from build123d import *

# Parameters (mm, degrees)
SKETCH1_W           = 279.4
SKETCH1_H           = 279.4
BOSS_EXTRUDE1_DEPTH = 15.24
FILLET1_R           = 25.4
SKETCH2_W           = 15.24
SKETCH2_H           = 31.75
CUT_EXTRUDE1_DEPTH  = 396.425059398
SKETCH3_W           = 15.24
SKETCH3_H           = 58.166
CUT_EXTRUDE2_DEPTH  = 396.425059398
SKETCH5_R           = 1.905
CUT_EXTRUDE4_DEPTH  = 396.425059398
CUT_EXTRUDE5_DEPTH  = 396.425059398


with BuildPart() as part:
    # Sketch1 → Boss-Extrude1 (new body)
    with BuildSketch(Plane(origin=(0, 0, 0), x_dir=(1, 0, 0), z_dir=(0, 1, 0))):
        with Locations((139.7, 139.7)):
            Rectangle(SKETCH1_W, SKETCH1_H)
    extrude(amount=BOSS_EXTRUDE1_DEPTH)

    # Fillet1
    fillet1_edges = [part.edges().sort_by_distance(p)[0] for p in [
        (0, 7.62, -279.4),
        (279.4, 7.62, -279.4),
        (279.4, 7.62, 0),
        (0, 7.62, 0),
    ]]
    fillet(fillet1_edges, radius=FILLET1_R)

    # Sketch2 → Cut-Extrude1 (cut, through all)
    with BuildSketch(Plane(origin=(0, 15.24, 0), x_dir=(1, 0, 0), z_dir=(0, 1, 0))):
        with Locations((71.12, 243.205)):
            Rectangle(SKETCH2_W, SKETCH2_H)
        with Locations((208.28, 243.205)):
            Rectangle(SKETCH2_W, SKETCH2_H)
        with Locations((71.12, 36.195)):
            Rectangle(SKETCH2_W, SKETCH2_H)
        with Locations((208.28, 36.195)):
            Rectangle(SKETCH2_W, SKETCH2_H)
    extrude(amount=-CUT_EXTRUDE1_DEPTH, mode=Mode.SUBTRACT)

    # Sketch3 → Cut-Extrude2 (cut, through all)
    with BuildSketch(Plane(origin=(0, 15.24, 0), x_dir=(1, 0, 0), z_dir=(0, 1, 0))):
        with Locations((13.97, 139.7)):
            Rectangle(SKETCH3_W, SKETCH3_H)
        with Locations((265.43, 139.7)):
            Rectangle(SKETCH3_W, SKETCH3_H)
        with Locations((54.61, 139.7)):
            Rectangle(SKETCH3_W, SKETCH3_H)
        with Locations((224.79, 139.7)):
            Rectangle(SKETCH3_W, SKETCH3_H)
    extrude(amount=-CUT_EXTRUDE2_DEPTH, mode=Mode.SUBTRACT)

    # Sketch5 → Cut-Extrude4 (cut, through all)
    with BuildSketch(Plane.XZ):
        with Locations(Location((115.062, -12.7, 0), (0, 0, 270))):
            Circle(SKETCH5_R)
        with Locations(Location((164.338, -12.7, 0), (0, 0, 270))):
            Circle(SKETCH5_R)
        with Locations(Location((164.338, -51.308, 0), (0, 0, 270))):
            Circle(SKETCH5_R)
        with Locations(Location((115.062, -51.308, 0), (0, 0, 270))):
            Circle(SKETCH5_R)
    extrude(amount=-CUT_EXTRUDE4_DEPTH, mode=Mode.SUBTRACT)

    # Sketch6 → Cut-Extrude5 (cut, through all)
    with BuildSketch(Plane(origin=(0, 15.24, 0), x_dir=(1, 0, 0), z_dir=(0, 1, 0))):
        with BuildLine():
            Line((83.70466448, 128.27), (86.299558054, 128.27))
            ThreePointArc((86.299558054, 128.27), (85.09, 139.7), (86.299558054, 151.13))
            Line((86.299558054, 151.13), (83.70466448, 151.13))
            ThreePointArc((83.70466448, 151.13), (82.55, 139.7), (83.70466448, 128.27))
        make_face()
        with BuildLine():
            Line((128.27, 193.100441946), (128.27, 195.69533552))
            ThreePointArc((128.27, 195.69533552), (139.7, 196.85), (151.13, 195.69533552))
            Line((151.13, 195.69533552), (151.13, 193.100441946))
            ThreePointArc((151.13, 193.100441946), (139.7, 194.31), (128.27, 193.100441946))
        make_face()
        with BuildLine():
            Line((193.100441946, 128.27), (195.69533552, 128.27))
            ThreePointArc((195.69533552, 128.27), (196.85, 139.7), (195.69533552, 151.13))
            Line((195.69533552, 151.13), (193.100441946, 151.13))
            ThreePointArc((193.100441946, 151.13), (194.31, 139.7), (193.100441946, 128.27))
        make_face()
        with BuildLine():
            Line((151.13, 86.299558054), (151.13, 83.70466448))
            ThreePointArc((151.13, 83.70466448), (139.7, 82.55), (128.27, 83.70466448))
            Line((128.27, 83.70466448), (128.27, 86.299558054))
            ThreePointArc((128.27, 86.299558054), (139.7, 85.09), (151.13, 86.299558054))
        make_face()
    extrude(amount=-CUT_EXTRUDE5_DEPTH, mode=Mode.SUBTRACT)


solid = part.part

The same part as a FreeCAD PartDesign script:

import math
import FreeCAD as App
import Part
import Sketcher
Q = App.Units.Quantity


def edges_at(feature, points):
    """Names of the edges that pass closest to the given points."""
    edges = feature.Shape.Edges
    near = lambda p: min(range(len(edges)), key=lambda i: edges[i].distToShape(Part.Vertex(*p))[0])
    return sorted({f"Edge{near(p) + 1}" for p in points})

doc = App.newDocument("Part")
params = doc.addObject("Spreadsheet::Sheet", "Params")
for row, (alias, value) in enumerate([
    ("sketch1_width", "11 in"),
    ("pad1_length", "0.6 in"),
    ("fillet_radius", "1 in"),
    ("sketch2_width", "0.6 in"),
    ("sketch2_height", "1.25 in"),
    ("sketch3_width", "0.6 in"),
    ("sketch3_height", "2.29 in"),
    ("sketch4_diameter", "0.15 in"),
    ("sketch5_radius", "2.15 in"),
    ("sketch5_radius2", "2.25 in"),
], start=1):
    params.set(f"A{row}", alias)
    params.set(f"B{row}", "=" + value)
    params.setAlias(f"B{row}", alias)

body = doc.addObject("PartDesign::Body", "Body")

# Sketch on XZ plane
sketch1 = doc.addObject("Sketcher::SketchObject", "Sketch")
body.addObject(sketch1)
sketch1.AttachmentSupport = (doc.XZ_Plane, [""])
sketch1.MapMode = "FlatFace"
sketch1.addGeometry([
    Part.LineSegment(App.Vector(0, -279, 0), App.Vector(0, 0, 0)),
    Part.LineSegment(App.Vector(0, 0, 0), App.Vector(279, 0, 0)),
    Part.LineSegment(App.Vector(279, 0, 0), App.Vector(279, -279, 0)),
    Part.LineSegment(App.Vector(279, -279, 0), App.Vector(0, -279, 0)),
], False)
sketch1.addConstraint([
    Sketcher.Constraint("Coincident", 0, 2, 1, 1),
    Sketcher.Constraint("Coincident", 1, 2, 2, 1),
    Sketcher.Constraint("Coincident", 2, 2, 3, 1),
    Sketcher.Constraint("Coincident", 3, 2, 0, 1),
    Sketcher.Constraint("Vertical", 0),
    Sketcher.Constraint("Horizontal", 1),
    Sketcher.Constraint("Vertical", 2),
    Sketcher.Constraint("Horizontal", 3),
    Sketcher.Constraint("Coincident", 0, 2, -1, 1),
    Sketcher.Constraint("Equal", 3, 0),
    Sketcher.Constraint("DistanceX", 1, 1, 1, 2, Q("11 in")),
])
sketch1.setExpression("Constraints[10]", "Params.sketch1_width")
pad1 = doc.addObject("PartDesign::Pad", "Pad")
body.addObject(pad1)
pad1.Profile = sketch1
pad1.setExpression("Length", "Params.pad1_length")
pad1.Reversed = True
doc.recompute()

fillet = doc.addObject("PartDesign::Fillet", "Fillet")
body.addObject(fillet)
fillet.Base = (pad1, edges_at(pad1, [
    (0, 7.62, -279.4),
    (279.4, 7.62, -279.4),
    (279.4, 7.62, 0),
    (0, 7.62, 0),
]))
fillet.setExpression("Radius", "Params.fillet_radius")

# Sketch on XZ plane
sketch2 = doc.addObject("Sketcher::SketchObject", "Sketch001")
body.addObject(sketch2)
sketch2.AttachmentSupport = (doc.XZ_Plane, [""])
sketch2.MapMode = "FlatFace"
sketch2.AttachmentOffset = App.Placement(App.Vector(0, 0, -0.6 * 25.4), App.Rotation())
sketch2.addGeometry([
    Part.LineSegment(App.Vector(64, -259, 0), App.Vector(64, -227, 0)),  # 0
    Part.LineSegment(App.Vector(64, -227, 0), App.Vector(79, -227, 0)),  # 1
    Part.LineSegment(App.Vector(79, -227, 0), App.Vector(79, -259, 0)),  # 2
    Part.LineSegment(App.Vector(79, -259, 0), App.Vector(64, -259, 0)),  # 3
    Part.LineSegment(App.Vector(201, -259, 0), App.Vector(201, -227, 0)),  # 4
    Part.LineSegment(App.Vector(201, -227, 0), App.Vector(216, -227, 0)),  # 5
    Part.LineSegment(App.Vector(216, -227, 0), App.Vector(216, -259, 0)),  # 6
    Part.LineSegment(App.Vector(216, -259, 0), App.Vector(201, -259, 0)),  # 7
    Part.LineSegment(App.Vector(64, -52, 0), App.Vector(64, -20, 0)),  # 8
    Part.LineSegment(App.Vector(64, -20, 0), App.Vector(79, -20, 0)),  # 9
    Part.LineSegment(App.Vector(79, -20, 0), App.Vector(79, -52, 0)),  # 10
    Part.LineSegment(App.Vector(79, -52, 0), App.Vector(64, -52, 0)),  # 11
    Part.LineSegment(App.Vector(201, -52, 0), App.Vector(201, -20, 0)),  # 12
    Part.LineSegment(App.Vector(201, -20, 0), App.Vector(216, -20, 0)),  # 13
    Part.LineSegment(App.Vector(216, -20, 0), App.Vector(216, -52, 0)),  # 14
    Part.LineSegment(App.Vector(216, -52, 0), App.Vector(201, -52, 0)),  # 15
], False)
sketch2.addConstraint([
    Sketcher.Constraint("Coincident", 0, 2, 1, 1),
    Sketcher.Constraint("Coincident", 1, 2, 2, 1),
    Sketcher.Constraint("Coincident", 2, 2, 3, 1),
    Sketcher.Constraint("Coincident", 3, 2, 0, 1),
    Sketcher.Constraint("Coincident", 4, 2, 5, 1),
    Sketcher.Constraint("Coincident", 5, 2, 6, 1),
    Sketcher.Constraint("Coincident", 6, 2, 7, 1),
    Sketcher.Constraint("Coincident", 7, 2, 4, 1),
    Sketcher.Constraint("Coincident", 8, 2, 9, 1),
    Sketcher.Constraint("Coincident", 9, 2, 10, 1),
    Sketcher.Constraint("Coincident", 10, 2, 11, 1),
    Sketcher.Constraint("Coincident", 11, 2, 8, 1),
    Sketcher.Constraint("Coincident", 12, 2, 13, 1),
    Sketcher.Constraint("Coincident", 13, 2, 14, 1),
    Sketcher.Constraint("Coincident", 14, 2, 15, 1),
    Sketcher.Constraint("Coincident", 15, 2, 12, 1),
    Sketcher.Constraint("Vertical", 0),
    Sketcher.Constraint("Horizontal", 1),
    Sketcher.Constraint("Vertical", 2),
    Sketcher.Constraint("Horizontal", 3),
    Sketcher.Constraint("Vertical", 4),
    Sketcher.Constraint("Horizontal", 5),
    Sketcher.Constraint("Vertical", 6),
    Sketcher.Constraint("Horizontal", 7),
    Sketcher.Constraint("Vertical", 8),
    Sketcher.Constraint("Horizontal", 9),
    Sketcher.Constraint("Vertical", 10),
    Sketcher.Constraint("Horizontal", 11),
    Sketcher.Constraint("Vertical", 12),
    Sketcher.Constraint("Horizontal", 13),
    Sketcher.Constraint("Vertical", 14),
    Sketcher.Constraint("Horizontal", 15),
    Sketcher.Constraint("Horizontal", 1, 2, 4, 2),
    Sketcher.Constraint("Horizontal", 3, 2, 6, 2),
    Sketcher.Constraint("Horizontal", 9, 2, 12, 2),
    Sketcher.Constraint("Horizontal", 11, 2, 14, 2),
    Sketcher.Constraint("Vertical", 3, 2, 8, 2),
    Sketcher.Constraint("Vertical", 2, 2, 9, 2),
    Sketcher.Constraint("Vertical", 7, 2, 12, 2),
    Sketcher.Constraint("Vertical", 6, 2, 13, 2),
    Sketcher.Constraint("Equal", 3, 5),
    Sketcher.Constraint("Equal", 6, 8),
    Sketcher.Constraint("DistanceX", 1, 1, 1, 2, Q("0.6 in")),
    Sketcher.Constraint("DistanceX", 0, 2, 5, 2, Q("6 in")),
    Sketcher.Constraint("DistanceY", 0, 1, 0, 2, Q("1.25 in")),
    Sketcher.Constraint("DistanceX", -1, 1, 0, 2, Q("2.5 in")),
    Sketcher.Constraint("DistanceY", 2, 2, -1, 1, Q("10.2 in")),
    Sketcher.Constraint("DistanceY", 8, 2, -1, 1, Q("0.8 in")),
])
sketch2.setExpression("Constraints[42]", "Params.sketch2_width")
sketch2.setExpression("Constraints[44]", "Params.sketch2_height")
pocket1 = doc.addObject("PartDesign::Pocket", "Pocket")
body.addObject(pocket1)
pocket1.Profile = sketch2
pocket1.Type = "ThroughAll"
pocket1.Reversed = True

# Sketch on XZ plane
sketch3 = doc.addObject("Sketcher::SketchObject", "Sketch002")
body.addObject(sketch3)
sketch3.AttachmentSupport = (doc.XZ_Plane, [""])
sketch3.MapMode = "FlatFace"
sketch3.AttachmentOffset = App.Placement(App.Vector(0, 0, -0.6 * 25.4), App.Rotation())
sketch3.addGeometry([
    Part.LineSegment(App.Vector(6, -169, 0), App.Vector(6, -111, 0)),  # 0
    Part.LineSegment(App.Vector(6, -111, 0), App.Vector(22, -111, 0)),  # 1
    Part.LineSegment(App.Vector(22, -111, 0), App.Vector(22, -169, 0)),  # 2
    Part.LineSegment(App.Vector(22, -169, 0), App.Vector(6, -169, 0)),  # 3
    Part.LineSegment(App.Vector(258, -169, 0), App.Vector(258, -111, 0)),  # 4
    Part.LineSegment(App.Vector(258, -111, 0), App.Vector(273, -111, 0)),  # 5
    Part.LineSegment(App.Vector(273, -111, 0), App.Vector(273, -169, 0)),  # 6
    Part.LineSegment(App.Vector(273, -169, 0), App.Vector(258, -169, 0)),  # 7
    Part.LineSegment(App.Vector(47, -169, 0), App.Vector(47, -111, 0)),  # 8
    Part.LineSegment(App.Vector(47, -111, 0), App.Vector(62, -111, 0)),  # 9
    Part.LineSegment(App.Vector(62, -111, 0), App.Vector(62, -169, 0)),  # 10
    Part.LineSegment(App.Vector(62, -169, 0), App.Vector(47, -169, 0)),  # 11
    Part.LineSegment(App.Vector(217, -169, 0), App.Vector(217, -111, 0)),  # 12
    Part.LineSegment(App.Vector(217, -111, 0), App.Vector(232, -111, 0)),  # 13
    Part.LineSegment(App.Vector(232, -111, 0), App.Vector(232, -169, 0)),  # 14
    Part.LineSegment(App.Vector(232, -169, 0), App.Vector(217, -169, 0)),  # 15
], False)
sketch3.addConstraint([
    Sketcher.Constraint("Coincident", 0, 2, 1, 1),
    Sketcher.Constraint("Coincident", 1, 2, 2, 1),
    Sketcher.Constraint("Coincident", 2, 2, 3, 1),
    Sketcher.Constraint("Coincident", 3, 2, 0, 1),
    Sketcher.Constraint("Coincident", 4, 2, 5, 1),
    Sketcher.Constraint("Coincident", 5, 2, 6, 1),
    Sketcher.Constraint("Coincident", 6, 2, 7, 1),
    Sketcher.Constraint("Coincident", 7, 2, 4, 1),
    Sketcher.Constraint("Coincident", 8, 2, 9, 1),
    Sketcher.Constraint("Coincident", 9, 2, 10, 1),
    Sketcher.Constraint("Coincident", 10, 2, 11, 1),
    Sketcher.Constraint("Coincident", 11, 2, 8, 1),
    Sketcher.Constraint("Coincident", 12, 2, 13, 1),
    Sketcher.Constraint("Coincident", 13, 2, 14, 1),
    Sketcher.Constraint("Coincident", 14, 2, 15, 1),
    Sketcher.Constraint("Coincident", 15, 2, 12, 1),
    Sketcher.Constraint("Vertical", 0),
    Sketcher.Constraint("Horizontal", 1),
    Sketcher.Constraint("Vertical", 2),
    Sketcher.Constraint("Horizontal", 3),
    Sketcher.Constraint("Vertical", 4),
    Sketcher.Constraint("Horizontal", 5),
    Sketcher.Constraint("Vertical", 6),
    Sketcher.Constraint("Horizontal", 7),
    Sketcher.Constraint("Vertical", 8),
    Sketcher.Constraint("Horizontal", 9),
    Sketcher.Constraint("Vertical", 10),
    Sketcher.Constraint("Horizontal", 11),
    Sketcher.Constraint("Vertical", 12),
    Sketcher.Constraint("Horizontal", 13),
    Sketcher.Constraint("Vertical", 14),
    Sketcher.Constraint("Horizontal", 15),
    Sketcher.Constraint("Horizontal", 1, 2, 4, 2),
    Sketcher.Constraint("Horizontal", 3, 2, 6, 2),
    Sketcher.Constraint("Horizontal", 5, 2, 8, 2),
    Sketcher.Constraint("Horizontal", 7, 2, 10, 2),
    Sketcher.Constraint("Horizontal", 9, 2, 12, 2),
    Sketcher.Constraint("Horizontal", 11, 2, 14, 2),
    Sketcher.Constraint("Equal", 3, 5),
    Sketcher.Constraint("Equal", 7, 9),
    Sketcher.Constraint("Equal", 11, 13),
    Sketcher.Constraint("DistanceX", 1, 1, 1, 2, Q("0.6 in")),
    Sketcher.Constraint("DistanceX", 1, 2, 8, 2, Q("1 in")),
    Sketcher.Constraint("DistanceX", 13, 2, 4, 2, Q("1 in")),
    Sketcher.Constraint("DistanceY", 0, 1, 0, 2, Q("2.29 in")),
    Sketcher.Constraint("DistanceX", 1, 2, 4, 2, Q("9.3 in")),
    Sketcher.Constraint("DistanceX", -1, 1, 0, 2, Q("0.25 in")),
    Sketcher.Constraint("DistanceY", 0, 2, -1, 1, Q("4.355 in")),
])
sketch3.setExpression("Constraints[41]", "Params.sketch3_width")
sketch3.setExpression("Constraints[44]", "Params.sketch3_height")
pocket2 = doc.addObject("PartDesign::Pocket", "Pocket001")
body.addObject(pocket2)
pocket2.Profile = sketch3
pocket2.Type = "ThroughAll"
pocket2.Reversed = True

# Sketch on XZ plane
sketch4 = doc.addObject("Sketcher::SketchObject", "Sketch003")
body.addObject(sketch4)
sketch4.AttachmentSupport = (doc.XZ_Plane, [""])
sketch4.MapMode = "FlatFace"
sketch4.addGeometry([
    Part.Circle(App.Vector(115.1, -12.7, 0), App.Vector(0, 0, 1), 1.9),
    Part.Circle(App.Vector(164.3, -12.7, 0), App.Vector(0, 0, 1), 1.9),
    Part.Circle(App.Vector(164.3, -51.3, 0), App.Vector(0, 0, 1), 1.9),
    Part.Circle(App.Vector(115.1, -51.3, 0), App.Vector(0, 0, 1), 1.9),
], False)
sketch4.addConstraint([
    Sketcher.Constraint("Equal", 0, 1),
    Sketcher.Constraint("Equal", 1, 2),
    Sketcher.Constraint("Equal", 2, 3),
    Sketcher.Constraint("Horizontal", 0, 3, 1, 3),
    Sketcher.Constraint("Horizontal", 2, 3, 3, 3),
    Sketcher.Constraint("Vertical", 1, 3, 2, 3),
    Sketcher.Constraint("Vertical", 0, 3, 3, 3),
    Sketcher.Constraint("Diameter", 0, Q("0.15 in")),
    Sketcher.Constraint("DistanceY", 0, 3, -1, 1, Q("0.5 in")),
    Sketcher.Constraint("DistanceX", -1, 1, 0, 3, Q("4.53 in")),
    Sketcher.Constraint("DistanceX", -1, 1, 1, 3, Q("6.47 in")),
    Sketcher.Constraint("DistanceY", 2, 3, -1, 1, Q("2.02 in")),
])
sketch4.setExpression("Constraints[7]", "Params.sketch4_diameter")
pocket3 = doc.addObject("PartDesign::Pocket", "Pocket002")
body.addObject(pocket3)
pocket3.Profile = sketch4
pocket3.Type = "ThroughAll"

# Sketch on XZ plane
sketch5 = doc.addObject("Sketcher::SketchObject", "Sketch004")
body.addObject(sketch5)
sketch5.AttachmentSupport = (doc.XZ_Plane, [""])
sketch5.MapMode = "FlatFace"
sketch5.AttachmentOffset = App.Placement(App.Vector(0, 0, -0.6 * 25.4), App.Rotation())
sketch5.addGeometry([
    Part.LineSegment(App.Vector(83.704664, -128.27, 0), App.Vector(86.299558, -128.27, 0)),  # 0
    Part.ArcOfCircle(Part.Circle(App.Vector(139.7, -139.7, 0), App.Vector(0, 0, 1), 54.61), math.radians(167.91853), math.radians(192.08147)),  # 1
    Part.LineSegment(App.Vector(86.299558, -151.13, 0), App.Vector(83.704664, -151.13, 0)),  # 2
    Part.ArcOfCircle(Part.Circle(App.Vector(139.7, -139.7, 0), App.Vector(0, 0, 1), 57.15), math.radians(168.463041), math.radians(191.536959)),  # 3
    Part.LineSegment(App.Vector(128.27, -195.695336, 0), App.Vector(128.27, -193.100442, 0)),  # 4
    Part.ArcOfCircle(Part.Circle(App.Vector(139.7, -139.7, 0), App.Vector(0, 0, 1), 54.61), math.radians(-102.08147), math.radians(-77.91853)),  # 5
    Part.LineSegment(App.Vector(151.13, -193.100442, 0), App.Vector(151.13, -195.695336, 0)),  # 6
    Part.ArcOfCircle(Part.Circle(App.Vector(139.7, -139.7, 0), App.Vector(0, 0, 1), 57.15), math.radians(-101.536959), math.radians(-78.463041)),  # 7
    Part.LineSegment(App.Vector(193.100442, -128.27, 0), App.Vector(195.695336, -128.27, 0)),  # 8
    Part.ArcOfCircle(Part.Circle(App.Vector(139.7, -139.7, 0), App.Vector(0, 0, 1), 57.15), math.radians(-11.536959), math.radians(11.536959)),  # 9
    Part.LineSegment(App.Vector(195.695336, -151.13, 0), App.Vector(193.100442, -151.13, 0)),  # 10
    Part.ArcOfCircle(Part.Circle(App.Vector(139.7, -139.7, 0), App.Vector(0, 0, 1), 54.61), math.radians(-12.08147), math.radians(12.08147)),  # 11
    Part.LineSegment(App.Vector(151.13, -83.704664, 0), App.Vector(151.13, -86.299558, 0)),  # 12
    Part.ArcOfCircle(Part.Circle(App.Vector(139.7, -139.7, 0), App.Vector(0, 0, 1), 54.61), math.radians(77.91853), math.radians(102.08147)),  # 13
    Part.LineSegment(App.Vector(128.27, -86.299558, 0), App.Vector(128.27, -83.704664, 0)),  # 14
    Part.ArcOfCircle(Part.Circle(App.Vector(139.7, -139.7, 0), App.Vector(0, 0, 1), 57.15), math.radians(78.463041), math.radians(101.536959)),  # 15
], False)
sketch5.addConstraint([
    Sketcher.Constraint("Coincident", 0, 2, 1, 1),
    Sketcher.Constraint("Coincident", 1, 2, 2, 1),
    Sketcher.Constraint("Coincident", 2, 2, 3, 2),
    Sketcher.Constraint("Coincident", 3, 1, 0, 1),
    Sketcher.Constraint("Coincident", 4, 2, 5, 1),
    Sketcher.Constraint("Coincident", 5, 2, 6, 1),
    Sketcher.Constraint("Coincident", 6, 2, 7, 2),
    Sketcher.Constraint("Coincident", 7, 1, 4, 1),
    Sketcher.Constraint("Coincident", 8, 2, 9, 2),
    Sketcher.Constraint("Coincident", 9, 1, 10, 1),
    Sketcher.Constraint("Coincident", 10, 2, 11, 1),
    Sketcher.Constraint("Coincident", 11, 2, 8, 1),
    Sketcher.Constraint("Coincident", 12, 2, 13, 1),
    Sketcher.Constraint("Coincident", 13, 2, 14, 1),
    Sketcher.Constraint("Coincident", 14, 2, 15, 2),
    Sketcher.Constraint("Coincident", 15, 1, 12, 1),
    Sketcher.Constraint("Horizontal", 0),
    Sketcher.Constraint("Horizontal", 2),
    Sketcher.Constraint("Vertical", 4),
    Sketcher.Constraint("Vertical", 6),
    Sketcher.Constraint("Horizontal", 8),
    Sketcher.Constraint("Horizontal", 10),
    Sketcher.Constraint("Vertical", 12),
    Sketcher.Constraint("Vertical", 14),
    Sketcher.Constraint("Coincident", 3, 3, 1, 3),
    Sketcher.Constraint("Coincident", 5, 3, 1, 3),
    Sketcher.Constraint("Coincident", 7, 3, 1, 3),
    Sketcher.Constraint("Coincident", 9, 3, 1, 3),
    Sketcher.Constraint("Coincident", 11, 3, 1, 3),
    Sketcher.Constraint("Coincident", 13, 3, 1, 3),
    Sketcher.Constraint("Coincident", 15, 3, 1, 3),
    Sketcher.Constraint("Equal", 1, 5),
    Sketcher.Constraint("Equal", 3, 7),
    Sketcher.Constraint("Equal", 7, 9),
    Sketcher.Constraint("Equal", 5, 11),
    Sketcher.Constraint("Equal", 11, 13),
    Sketcher.Constraint("Equal", 9, 15),
    Sketcher.Constraint("Horizontal", 4, 2, 5, 2),
    Sketcher.Constraint("Horizontal", 3, 1, 8, 2),
    Sketcher.Constraint("Horizontal", 2, 2, 9, 1),
    Sketcher.Constraint("Horizontal", 12, 2, 13, 2),
    Sketcher.Constraint("Vertical", 0, 2, 1, 2),
    Sketcher.Constraint("Vertical", 6, 2, 12, 2),
    Sketcher.Constraint("Equal", 10, 4),
    Sketcher.Constraint("Radius", 1, Q("2.15 in")),
    Sketcher.Constraint("Radius", 3, Q("2.25 in")),
    Sketcher.Constraint("DistanceX", -1, 1, 1, 3, Q("5.5 in")),
    Sketcher.Constraint("DistanceY", 1, 3, -1, 1, Q("5.5 in")),
    Sketcher.Constraint("DistanceY", 1, 2, 0, 2, Q("0.9 in")),
])
sketch5.setExpression("Constraints[44]", "Params.sketch5_radius")
sketch5.setExpression("Constraints[45]", "Params.sketch5_radius2")
pocket4 = doc.addObject("PartDesign::Pocket", "Pocket003")
body.addObject(pocket4)
pocket4.Profile = sketch5
pocket4.Type = "ThroughAll"
pocket4.Reversed = True

doc.recompute()
